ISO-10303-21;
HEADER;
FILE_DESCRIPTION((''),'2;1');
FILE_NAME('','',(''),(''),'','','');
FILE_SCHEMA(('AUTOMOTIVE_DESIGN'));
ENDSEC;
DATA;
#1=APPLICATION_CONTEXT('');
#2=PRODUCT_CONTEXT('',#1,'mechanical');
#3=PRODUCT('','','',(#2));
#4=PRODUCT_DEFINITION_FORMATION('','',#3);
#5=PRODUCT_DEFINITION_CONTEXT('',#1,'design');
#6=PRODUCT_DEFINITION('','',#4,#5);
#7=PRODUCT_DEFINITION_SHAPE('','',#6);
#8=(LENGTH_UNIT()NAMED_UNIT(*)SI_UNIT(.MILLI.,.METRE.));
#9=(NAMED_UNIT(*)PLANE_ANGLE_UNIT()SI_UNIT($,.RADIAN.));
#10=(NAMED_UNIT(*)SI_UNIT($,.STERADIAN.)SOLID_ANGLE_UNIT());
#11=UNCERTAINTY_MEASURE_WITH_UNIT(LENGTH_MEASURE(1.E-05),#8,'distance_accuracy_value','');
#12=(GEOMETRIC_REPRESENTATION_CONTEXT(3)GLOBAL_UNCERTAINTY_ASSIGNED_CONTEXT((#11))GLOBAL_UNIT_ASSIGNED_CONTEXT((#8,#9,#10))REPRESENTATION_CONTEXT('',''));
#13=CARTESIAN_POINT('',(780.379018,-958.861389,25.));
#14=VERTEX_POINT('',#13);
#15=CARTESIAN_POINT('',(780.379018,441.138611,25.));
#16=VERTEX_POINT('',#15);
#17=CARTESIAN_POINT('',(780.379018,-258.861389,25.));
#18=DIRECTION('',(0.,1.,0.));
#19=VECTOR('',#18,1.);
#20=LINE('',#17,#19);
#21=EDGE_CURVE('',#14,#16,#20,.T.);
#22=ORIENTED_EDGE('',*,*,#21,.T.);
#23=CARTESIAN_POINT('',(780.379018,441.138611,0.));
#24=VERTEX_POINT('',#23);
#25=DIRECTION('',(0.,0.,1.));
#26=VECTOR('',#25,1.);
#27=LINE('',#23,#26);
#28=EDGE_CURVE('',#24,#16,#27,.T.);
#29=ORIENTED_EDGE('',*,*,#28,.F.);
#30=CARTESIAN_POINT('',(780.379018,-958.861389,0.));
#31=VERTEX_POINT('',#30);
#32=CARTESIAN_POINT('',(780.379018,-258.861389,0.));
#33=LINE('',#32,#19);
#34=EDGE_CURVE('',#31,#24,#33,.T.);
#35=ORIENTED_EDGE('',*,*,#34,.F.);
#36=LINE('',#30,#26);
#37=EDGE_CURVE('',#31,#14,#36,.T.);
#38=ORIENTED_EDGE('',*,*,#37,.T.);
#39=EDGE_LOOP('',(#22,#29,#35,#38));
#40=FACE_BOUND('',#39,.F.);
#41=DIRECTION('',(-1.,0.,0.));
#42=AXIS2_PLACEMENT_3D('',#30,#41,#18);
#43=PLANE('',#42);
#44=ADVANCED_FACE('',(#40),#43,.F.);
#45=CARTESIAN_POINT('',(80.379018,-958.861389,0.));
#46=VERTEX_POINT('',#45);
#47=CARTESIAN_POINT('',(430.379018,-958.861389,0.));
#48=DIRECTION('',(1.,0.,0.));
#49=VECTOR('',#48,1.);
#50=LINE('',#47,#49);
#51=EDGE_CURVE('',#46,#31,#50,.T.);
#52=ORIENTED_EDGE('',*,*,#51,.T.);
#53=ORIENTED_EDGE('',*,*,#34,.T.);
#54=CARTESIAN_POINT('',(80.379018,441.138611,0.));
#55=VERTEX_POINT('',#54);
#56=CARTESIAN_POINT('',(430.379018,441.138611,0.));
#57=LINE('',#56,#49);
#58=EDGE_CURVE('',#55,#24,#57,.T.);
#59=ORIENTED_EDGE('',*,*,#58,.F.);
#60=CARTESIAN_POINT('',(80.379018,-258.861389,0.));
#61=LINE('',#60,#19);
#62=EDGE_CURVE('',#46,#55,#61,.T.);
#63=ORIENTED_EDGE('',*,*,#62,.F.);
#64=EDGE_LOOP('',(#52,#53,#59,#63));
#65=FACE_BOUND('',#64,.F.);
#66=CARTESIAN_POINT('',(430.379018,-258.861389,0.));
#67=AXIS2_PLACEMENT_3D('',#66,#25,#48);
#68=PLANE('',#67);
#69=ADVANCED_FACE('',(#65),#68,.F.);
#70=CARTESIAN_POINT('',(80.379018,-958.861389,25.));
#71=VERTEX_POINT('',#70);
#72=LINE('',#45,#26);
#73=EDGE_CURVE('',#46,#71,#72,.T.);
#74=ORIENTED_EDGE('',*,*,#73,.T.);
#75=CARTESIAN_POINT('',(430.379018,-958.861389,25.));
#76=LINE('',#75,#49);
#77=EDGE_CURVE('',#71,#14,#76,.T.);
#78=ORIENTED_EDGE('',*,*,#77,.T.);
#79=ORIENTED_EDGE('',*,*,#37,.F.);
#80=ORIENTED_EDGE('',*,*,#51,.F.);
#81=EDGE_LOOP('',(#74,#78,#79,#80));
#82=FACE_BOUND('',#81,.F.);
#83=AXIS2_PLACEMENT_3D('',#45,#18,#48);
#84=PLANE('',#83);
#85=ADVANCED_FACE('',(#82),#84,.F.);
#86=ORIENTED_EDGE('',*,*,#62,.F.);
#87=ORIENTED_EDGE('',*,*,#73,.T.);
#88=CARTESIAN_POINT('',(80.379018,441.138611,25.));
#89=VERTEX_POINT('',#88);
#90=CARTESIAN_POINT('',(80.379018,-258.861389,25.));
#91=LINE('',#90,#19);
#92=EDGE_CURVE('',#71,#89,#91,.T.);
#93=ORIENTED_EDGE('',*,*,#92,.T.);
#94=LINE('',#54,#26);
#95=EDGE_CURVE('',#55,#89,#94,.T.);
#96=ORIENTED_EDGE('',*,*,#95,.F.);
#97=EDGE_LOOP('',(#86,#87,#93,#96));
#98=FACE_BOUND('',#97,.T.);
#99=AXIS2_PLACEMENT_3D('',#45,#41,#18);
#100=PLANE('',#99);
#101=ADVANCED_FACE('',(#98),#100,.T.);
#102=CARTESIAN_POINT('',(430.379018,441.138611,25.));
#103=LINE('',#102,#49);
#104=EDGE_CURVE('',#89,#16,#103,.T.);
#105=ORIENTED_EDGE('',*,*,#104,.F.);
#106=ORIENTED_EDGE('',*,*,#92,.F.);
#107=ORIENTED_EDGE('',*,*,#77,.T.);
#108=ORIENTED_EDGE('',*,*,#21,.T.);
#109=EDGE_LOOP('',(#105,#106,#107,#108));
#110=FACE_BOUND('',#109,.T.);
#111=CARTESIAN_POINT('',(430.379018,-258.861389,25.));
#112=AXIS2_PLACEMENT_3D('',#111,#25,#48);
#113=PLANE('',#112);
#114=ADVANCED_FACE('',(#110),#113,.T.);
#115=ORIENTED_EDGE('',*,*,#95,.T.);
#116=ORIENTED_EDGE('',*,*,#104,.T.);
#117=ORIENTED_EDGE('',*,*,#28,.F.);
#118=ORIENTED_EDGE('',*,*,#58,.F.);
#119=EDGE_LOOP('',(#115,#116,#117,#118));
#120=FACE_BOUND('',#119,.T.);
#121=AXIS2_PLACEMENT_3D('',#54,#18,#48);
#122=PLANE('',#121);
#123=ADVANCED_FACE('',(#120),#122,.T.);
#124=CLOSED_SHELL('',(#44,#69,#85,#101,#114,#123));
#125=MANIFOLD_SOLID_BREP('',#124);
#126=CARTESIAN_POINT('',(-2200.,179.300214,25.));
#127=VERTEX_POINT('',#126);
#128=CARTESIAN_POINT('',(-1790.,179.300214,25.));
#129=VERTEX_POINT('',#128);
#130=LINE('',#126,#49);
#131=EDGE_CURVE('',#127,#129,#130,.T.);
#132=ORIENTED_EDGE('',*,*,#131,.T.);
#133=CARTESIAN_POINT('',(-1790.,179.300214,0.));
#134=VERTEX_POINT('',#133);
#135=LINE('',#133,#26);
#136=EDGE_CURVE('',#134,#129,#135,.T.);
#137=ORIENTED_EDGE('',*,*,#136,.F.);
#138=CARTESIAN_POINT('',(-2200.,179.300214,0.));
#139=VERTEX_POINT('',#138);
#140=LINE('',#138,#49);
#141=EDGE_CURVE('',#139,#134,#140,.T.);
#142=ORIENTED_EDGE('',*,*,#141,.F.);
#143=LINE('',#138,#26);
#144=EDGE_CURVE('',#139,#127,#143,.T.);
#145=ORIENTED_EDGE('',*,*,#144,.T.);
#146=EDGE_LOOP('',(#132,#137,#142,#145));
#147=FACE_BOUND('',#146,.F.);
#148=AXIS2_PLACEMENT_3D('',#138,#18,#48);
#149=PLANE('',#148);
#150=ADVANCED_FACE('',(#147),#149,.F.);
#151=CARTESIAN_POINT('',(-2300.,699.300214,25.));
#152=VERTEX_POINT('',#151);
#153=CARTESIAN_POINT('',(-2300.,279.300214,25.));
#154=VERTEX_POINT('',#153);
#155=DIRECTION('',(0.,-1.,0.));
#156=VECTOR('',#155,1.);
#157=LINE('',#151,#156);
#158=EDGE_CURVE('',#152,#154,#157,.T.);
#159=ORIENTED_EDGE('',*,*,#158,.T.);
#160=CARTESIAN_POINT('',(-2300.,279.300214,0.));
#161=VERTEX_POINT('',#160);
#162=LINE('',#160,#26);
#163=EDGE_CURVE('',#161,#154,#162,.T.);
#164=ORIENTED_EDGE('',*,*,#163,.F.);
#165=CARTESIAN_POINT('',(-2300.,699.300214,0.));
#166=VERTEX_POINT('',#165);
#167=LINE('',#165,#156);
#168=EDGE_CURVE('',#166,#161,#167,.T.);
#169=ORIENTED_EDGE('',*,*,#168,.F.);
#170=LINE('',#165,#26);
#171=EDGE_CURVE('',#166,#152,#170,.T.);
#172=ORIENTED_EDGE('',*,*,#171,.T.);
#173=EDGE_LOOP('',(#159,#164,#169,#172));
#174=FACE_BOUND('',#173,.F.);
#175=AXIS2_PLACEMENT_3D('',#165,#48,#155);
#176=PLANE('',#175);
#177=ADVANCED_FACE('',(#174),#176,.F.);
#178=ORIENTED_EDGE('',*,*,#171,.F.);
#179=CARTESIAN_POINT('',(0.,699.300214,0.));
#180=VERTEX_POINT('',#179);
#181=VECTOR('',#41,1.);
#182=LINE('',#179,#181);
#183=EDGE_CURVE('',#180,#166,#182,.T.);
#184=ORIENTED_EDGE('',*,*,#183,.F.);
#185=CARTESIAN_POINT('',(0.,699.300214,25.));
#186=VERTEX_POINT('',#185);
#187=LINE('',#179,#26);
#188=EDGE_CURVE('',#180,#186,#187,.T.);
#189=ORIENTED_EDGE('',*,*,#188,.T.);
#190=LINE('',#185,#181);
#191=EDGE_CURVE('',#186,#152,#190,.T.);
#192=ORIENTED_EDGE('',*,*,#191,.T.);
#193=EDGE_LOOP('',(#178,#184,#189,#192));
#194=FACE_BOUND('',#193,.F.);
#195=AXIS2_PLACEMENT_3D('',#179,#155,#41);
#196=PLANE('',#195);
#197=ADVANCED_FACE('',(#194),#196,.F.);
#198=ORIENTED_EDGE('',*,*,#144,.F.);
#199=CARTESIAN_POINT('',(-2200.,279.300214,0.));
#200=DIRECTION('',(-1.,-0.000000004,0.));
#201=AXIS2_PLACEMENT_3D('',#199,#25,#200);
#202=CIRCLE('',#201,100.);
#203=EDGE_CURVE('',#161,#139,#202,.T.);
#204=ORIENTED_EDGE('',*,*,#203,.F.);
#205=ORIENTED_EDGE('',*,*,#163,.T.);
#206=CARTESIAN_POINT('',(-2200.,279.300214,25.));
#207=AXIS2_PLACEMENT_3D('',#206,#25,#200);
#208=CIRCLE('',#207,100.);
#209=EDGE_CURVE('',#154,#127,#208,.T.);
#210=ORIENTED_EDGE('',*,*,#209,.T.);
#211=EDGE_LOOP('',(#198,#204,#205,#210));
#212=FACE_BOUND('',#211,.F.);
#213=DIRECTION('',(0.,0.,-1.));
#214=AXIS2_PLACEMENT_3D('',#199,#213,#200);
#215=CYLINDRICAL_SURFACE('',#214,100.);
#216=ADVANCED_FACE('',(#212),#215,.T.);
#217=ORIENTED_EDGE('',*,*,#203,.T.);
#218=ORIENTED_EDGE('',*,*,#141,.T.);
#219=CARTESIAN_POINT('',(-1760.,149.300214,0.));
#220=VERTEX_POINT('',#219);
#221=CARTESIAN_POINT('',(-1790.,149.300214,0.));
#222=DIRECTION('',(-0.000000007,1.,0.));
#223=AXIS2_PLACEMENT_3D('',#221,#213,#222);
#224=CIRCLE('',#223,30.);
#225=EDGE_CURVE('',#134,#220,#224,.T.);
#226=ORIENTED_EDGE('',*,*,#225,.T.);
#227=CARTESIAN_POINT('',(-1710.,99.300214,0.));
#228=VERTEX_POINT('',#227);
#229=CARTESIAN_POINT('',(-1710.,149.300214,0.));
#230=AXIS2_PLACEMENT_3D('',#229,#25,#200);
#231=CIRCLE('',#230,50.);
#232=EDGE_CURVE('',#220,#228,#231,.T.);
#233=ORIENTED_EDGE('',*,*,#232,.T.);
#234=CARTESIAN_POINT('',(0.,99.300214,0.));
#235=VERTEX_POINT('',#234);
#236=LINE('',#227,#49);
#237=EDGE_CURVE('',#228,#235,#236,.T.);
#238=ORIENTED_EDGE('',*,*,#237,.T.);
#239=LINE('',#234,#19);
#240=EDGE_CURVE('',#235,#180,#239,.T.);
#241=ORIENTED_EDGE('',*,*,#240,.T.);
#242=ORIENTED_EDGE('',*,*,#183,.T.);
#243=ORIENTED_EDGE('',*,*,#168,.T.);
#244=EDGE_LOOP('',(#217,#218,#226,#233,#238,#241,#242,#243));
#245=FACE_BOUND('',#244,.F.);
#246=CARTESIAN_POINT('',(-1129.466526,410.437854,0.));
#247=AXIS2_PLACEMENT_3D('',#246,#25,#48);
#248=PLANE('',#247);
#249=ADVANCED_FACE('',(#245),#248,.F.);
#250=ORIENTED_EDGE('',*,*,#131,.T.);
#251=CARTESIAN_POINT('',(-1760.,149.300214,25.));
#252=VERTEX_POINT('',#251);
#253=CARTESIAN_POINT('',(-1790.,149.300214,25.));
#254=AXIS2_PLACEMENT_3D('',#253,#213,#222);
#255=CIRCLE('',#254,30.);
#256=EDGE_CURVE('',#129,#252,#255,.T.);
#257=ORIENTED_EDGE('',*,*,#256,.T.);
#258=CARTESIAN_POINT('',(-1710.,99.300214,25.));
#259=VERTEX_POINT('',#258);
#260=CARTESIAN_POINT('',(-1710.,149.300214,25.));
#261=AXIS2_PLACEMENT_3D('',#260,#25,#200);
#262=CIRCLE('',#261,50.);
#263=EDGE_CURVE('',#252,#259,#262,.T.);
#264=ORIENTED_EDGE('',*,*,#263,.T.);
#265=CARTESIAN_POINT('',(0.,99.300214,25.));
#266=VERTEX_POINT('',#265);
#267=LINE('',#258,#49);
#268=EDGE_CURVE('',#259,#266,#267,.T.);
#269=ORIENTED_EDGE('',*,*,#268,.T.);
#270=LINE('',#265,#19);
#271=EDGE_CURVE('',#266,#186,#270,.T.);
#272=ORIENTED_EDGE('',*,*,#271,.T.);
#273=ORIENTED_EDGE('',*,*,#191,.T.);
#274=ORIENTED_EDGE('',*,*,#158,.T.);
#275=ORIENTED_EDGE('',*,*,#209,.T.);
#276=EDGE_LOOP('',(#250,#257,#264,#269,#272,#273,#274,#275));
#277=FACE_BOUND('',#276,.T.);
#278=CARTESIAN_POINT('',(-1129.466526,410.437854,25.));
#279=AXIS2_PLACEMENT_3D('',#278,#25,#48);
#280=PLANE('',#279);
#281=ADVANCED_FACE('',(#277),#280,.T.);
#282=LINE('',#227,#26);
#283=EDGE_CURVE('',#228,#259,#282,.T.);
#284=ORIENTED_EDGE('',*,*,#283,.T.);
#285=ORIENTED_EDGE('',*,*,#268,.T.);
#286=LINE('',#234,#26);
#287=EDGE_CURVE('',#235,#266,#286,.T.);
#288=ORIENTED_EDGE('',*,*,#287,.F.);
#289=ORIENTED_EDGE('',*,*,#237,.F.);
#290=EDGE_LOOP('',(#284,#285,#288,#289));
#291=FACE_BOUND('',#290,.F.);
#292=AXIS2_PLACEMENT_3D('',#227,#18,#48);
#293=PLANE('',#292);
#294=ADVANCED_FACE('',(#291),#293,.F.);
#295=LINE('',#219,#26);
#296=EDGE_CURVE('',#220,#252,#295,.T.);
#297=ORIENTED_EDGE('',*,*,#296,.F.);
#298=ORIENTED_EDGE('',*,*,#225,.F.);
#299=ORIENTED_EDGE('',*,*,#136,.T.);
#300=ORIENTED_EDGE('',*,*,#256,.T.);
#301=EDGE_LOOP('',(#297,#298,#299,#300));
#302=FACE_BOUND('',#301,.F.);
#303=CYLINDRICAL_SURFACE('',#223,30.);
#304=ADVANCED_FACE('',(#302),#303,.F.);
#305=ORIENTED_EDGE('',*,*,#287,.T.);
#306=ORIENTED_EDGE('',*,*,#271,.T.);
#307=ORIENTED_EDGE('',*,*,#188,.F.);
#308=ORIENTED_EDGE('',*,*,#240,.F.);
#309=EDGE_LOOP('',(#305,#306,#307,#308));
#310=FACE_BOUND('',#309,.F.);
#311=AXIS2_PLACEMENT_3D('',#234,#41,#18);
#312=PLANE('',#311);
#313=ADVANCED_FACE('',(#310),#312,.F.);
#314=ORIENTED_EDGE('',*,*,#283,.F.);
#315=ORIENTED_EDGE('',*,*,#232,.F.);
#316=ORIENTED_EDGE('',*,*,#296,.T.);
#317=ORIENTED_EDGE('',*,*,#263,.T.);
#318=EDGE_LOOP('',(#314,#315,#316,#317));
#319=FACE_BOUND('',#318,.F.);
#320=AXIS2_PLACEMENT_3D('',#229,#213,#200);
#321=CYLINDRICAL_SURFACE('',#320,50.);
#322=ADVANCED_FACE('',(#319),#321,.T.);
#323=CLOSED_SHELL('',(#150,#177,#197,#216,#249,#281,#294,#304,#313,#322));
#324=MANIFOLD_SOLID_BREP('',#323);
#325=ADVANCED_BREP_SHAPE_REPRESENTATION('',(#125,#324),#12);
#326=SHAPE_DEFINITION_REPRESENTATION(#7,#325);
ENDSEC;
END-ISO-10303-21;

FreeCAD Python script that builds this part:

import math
import FreeCAD as App
import Part
import Sketcher

V = App.Vector
Q = App.Units.Quantity

doc = App.newDocument("Part")
body = doc.addObject("PartDesign::Body", "Body")

sketch1 = doc.addObject("Sketcher::SketchObject", "Sketch")
body.addObject(sketch1)
sketch1.AttachmentSupport = (doc.XY_Plane, [""])
sketch1.MapMode = "FlatFace"
sketch1.addGeometry(Part.LineSegment(V(0, 699, 0), V(-2300, 699, 0)), False)
sketch1.addGeometry(Part.LineSegment(V(-2300, 699, 0), V(-2300, 279, 0)), False)
sketch1.addGeometry(Part.ArcOfCircle(Part.Circle(V(-2200, 279, 0), V(0, 0, 1), 100), math.radians(-180), math.radians(-90)), False)
sketch1.addGeometry(Part.LineSegment(V(-2200, 179, 0), V(-1790, 179, 0)), False)
sketch1.addGeometry(Part.ArcOfCircle(Part.Circle(V(-1790, 149, 0), V(0, 0, 1), 30), math.radians(0), math.radians(90)), False)
sketch1.addGeometry(Part.ArcOfCircle(Part.Circle(V(-1710, 149, 0), V(0, 0, 1), 50), math.radians(-180), math.radians(-90)), False)
sketch1.addGeometry(Part.LineSegment(V(-1710, 99, 0), V(0, 99, 0)), False)
sketch1.addGeometry(Part.LineSegment(V(0, 99, 0), V(0, 699, 0)), False)
sketch1.addConstraint(Sketcher.Constraint("Coincident", 0, 2, 1, 1))
sketch1.addConstraint(Sketcher.Constraint("Tangent", 1, 2, 2, 1))
sketch1.addConstraint(Sketcher.Constraint("Tangent", 2, 2, 3, 1))
sketch1.addConstraint(Sketcher.Constraint("Tangent", 3, 2, 4, 2))
sketch1.addConstraint(Sketcher.Constraint("Tangent", 4, 1, 5, 1))
sketch1.addConstraint(Sketcher.Constraint("Tangent", 5, 2, 6, 1))
sketch1.addConstraint(Sketcher.Constraint("Coincident", 6, 2, 7, 1))
sketch1.addConstraint(Sketcher.Constraint("Coincident", 7, 2, 0, 1))
sketch1.addConstraint(Sketcher.Constraint("Horizontal", 0))
sketch1.addConstraint(Sketcher.Constraint("Vertical", 1))
sketch1.addConstraint(Sketcher.Constraint("Horizontal", 3))
sketch1.addConstraint(Sketcher.Constraint("Horizontal", 6))
sketch1.addConstraint(Sketcher.Constraint("Vertical", 7))
sketch1.addConstraint(Sketcher.Constraint("PointOnObject", 6, 2, -2))
sketch1.addConstraint(Sketcher.Constraint("Horizontal", 4, 3, 5, 3))
sketch1.addConstraint(Sketcher.Constraint("Radius", 2, Q("100 mm")))
sketch1.addConstraint(Sketcher.Constraint("Radius", 4, Q("30 mm")))
sketch1.addConstraint(Sketcher.Constraint("Radius", 5, Q("50 mm")))
sketch1.addConstraint(Sketcher.Constraint("DistanceX", 0, 2, 0, 1, Q("2300 mm")))
sketch1.addConstraint(Sketcher.Constraint("DistanceX", 3, 1, 3, 2, Q("410 mm")))
sketch1.addConstraint(Sketcher.Constraint("DistanceY", 1, 2, 1, 1, Q("420 mm")))
sketch1.addConstraint(Sketcher.Constraint("DistanceY", -1, 1, 2, 3, Q("279.300214 mm")))
pad1 = doc.addObject("PartDesign::Pad", "Pad")
body.addObject(pad1)
pad1.Profile = sketch1
pad1.Length = 25
body2 = doc.addObject("PartDesign::Body", "Body001")

sketch2 = doc.addObject("Sketcher::SketchObject", "Sketch001")
body2.addObject(sketch2)
sketch2.AttachmentSupport = (doc.getObject("XY_Plane001"), [""])
sketch2.MapMode = "FlatFace"
sketch2.addGeometry(Part.LineSegment(V(80, 441, 0), V(80, -959, 0)), False)
sketch2.addGeometry(Part.LineSegment(V(80, -959, 0), V(780, -959, 0)), False)
sketch2.addGeometry(Part.LineSegment(V(780, -959, 0), V(780, 441, 0)), False)
sketch2.addGeometry(Part.LineSegment(V(780, 441, 0), V(80, 441, 0)), False)
sketch2.addConstraint(Sketcher.Constraint("Coincident", 0, 2, 1, 1))
sketch2.addConstraint(Sketcher.Constraint("Coincident", 1, 2, 2, 1))
sketch2.addConstraint(Sketcher.Constraint("Coincident", 2, 2, 3, 1))
sketch2.addConstraint(Sketcher.Constraint("Coincident", 3, 2, 0, 1))
sketch2.addConstraint(Sketcher.Constraint("Vertical", 0))
sketch2.addConstraint(Sketcher.Constraint("Horizontal", 1))
sketch2.addConstraint(Sketcher.Constraint("Vertical", 2))
sketch2.addConstraint(Sketcher.Constraint("Horizontal", 3))
sketch2.addConstraint(Sketcher.Constraint("DistanceX", 1, 1, 1, 2, Q("700 mm")))
sketch2.addConstraint(Sketcher.Constraint("DistanceY", 0, 2, 0, 1, Q("1400 mm")))
sketch2.addConstraint(Sketcher.Constraint("DistanceX", -1, 1, 0, 2, Q("80.379018 mm")))
sketch2.addConstraint(Sketcher.Constraint("DistanceY", 0, 2, -1, 1, Q("958.861389 mm")))
pad2 = doc.addObject("PartDesign::Pad", "Pad001")
body2.addObject(pad2)
pad2.Profile = sketch2
pad2.Length = 25

doc.recompute()
